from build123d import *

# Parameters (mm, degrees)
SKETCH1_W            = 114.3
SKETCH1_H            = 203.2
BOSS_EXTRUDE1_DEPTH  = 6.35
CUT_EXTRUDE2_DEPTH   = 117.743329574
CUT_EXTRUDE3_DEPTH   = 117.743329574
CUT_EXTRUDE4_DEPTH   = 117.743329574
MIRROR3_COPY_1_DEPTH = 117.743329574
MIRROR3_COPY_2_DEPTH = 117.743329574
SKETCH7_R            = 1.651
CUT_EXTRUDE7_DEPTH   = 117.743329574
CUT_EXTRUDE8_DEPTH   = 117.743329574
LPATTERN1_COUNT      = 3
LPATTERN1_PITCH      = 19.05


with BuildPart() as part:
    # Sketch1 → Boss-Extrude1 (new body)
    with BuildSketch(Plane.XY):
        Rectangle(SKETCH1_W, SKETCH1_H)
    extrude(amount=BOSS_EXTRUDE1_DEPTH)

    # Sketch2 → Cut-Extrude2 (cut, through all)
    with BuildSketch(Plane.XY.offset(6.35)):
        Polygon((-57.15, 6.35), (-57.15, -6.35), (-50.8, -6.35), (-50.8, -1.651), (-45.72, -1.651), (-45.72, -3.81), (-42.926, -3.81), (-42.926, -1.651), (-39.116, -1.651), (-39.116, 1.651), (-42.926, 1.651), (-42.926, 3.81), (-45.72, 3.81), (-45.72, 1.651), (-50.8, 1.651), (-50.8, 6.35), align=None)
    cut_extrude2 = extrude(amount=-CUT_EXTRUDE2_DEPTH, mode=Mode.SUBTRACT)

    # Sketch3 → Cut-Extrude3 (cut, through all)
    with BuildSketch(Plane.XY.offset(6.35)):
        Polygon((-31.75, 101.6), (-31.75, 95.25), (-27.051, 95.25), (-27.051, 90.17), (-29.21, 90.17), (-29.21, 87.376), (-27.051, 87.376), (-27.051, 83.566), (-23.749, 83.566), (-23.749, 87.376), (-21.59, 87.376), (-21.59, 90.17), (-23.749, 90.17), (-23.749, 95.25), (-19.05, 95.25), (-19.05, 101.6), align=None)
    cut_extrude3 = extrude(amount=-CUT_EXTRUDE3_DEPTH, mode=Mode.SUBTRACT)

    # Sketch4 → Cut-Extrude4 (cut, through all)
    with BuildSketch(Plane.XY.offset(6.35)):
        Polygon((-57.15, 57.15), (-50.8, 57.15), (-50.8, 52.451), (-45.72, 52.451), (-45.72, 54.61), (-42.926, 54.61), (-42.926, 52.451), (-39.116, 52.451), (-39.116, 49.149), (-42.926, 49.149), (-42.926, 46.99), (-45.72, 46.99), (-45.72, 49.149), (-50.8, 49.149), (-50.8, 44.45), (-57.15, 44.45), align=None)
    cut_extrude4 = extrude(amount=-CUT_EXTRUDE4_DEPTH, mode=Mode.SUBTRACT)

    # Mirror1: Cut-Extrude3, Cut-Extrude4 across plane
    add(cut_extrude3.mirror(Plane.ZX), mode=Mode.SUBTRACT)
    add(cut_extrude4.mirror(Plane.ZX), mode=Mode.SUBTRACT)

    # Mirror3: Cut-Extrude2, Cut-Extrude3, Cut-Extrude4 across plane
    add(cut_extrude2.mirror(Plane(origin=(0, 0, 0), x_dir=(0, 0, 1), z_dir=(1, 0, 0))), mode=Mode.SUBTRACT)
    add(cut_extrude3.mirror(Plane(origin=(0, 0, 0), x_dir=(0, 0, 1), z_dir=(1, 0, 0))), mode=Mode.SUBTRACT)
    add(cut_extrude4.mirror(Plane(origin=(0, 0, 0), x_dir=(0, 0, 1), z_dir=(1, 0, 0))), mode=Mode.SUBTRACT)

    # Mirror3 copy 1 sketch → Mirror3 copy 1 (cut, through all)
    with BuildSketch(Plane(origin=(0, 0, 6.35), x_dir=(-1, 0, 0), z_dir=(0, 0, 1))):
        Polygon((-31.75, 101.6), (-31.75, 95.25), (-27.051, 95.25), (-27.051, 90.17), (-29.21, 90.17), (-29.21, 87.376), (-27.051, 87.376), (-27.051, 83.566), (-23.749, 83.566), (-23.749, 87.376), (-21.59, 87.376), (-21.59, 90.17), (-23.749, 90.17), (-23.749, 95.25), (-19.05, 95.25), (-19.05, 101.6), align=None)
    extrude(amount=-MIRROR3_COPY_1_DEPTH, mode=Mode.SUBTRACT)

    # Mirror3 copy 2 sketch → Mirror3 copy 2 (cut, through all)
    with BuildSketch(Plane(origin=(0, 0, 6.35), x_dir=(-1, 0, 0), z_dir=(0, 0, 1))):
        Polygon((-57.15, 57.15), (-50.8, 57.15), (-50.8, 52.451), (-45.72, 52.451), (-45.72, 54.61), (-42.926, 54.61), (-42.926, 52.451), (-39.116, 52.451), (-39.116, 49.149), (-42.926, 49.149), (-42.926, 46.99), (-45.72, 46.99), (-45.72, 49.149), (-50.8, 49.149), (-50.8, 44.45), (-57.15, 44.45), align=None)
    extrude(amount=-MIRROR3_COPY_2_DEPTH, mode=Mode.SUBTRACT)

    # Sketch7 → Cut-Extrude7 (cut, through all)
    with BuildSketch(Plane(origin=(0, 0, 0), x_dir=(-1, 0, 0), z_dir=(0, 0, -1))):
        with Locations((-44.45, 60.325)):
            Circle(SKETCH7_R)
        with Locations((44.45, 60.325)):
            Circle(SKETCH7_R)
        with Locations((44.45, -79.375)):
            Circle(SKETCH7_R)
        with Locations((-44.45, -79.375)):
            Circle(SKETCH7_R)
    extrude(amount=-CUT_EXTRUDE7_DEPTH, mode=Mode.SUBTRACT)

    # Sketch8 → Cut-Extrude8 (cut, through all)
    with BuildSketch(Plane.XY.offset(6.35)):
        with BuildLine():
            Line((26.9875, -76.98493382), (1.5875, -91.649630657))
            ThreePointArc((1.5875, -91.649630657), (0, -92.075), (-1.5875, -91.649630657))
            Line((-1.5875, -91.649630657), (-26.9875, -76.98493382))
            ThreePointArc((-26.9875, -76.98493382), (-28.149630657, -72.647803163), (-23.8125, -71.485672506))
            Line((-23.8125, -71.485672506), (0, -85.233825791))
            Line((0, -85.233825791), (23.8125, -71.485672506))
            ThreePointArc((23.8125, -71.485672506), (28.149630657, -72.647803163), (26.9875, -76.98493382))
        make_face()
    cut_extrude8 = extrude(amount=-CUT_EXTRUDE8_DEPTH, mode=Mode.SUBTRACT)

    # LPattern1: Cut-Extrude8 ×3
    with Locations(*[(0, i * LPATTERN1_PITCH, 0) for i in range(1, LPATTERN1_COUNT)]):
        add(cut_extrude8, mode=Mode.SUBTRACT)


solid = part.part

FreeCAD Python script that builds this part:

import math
import FreeCAD as App
import Part
import Sketcher
from FreeCAD import Vector
Q = App.Units.Quantity

doc = App.newDocument("Part")
params = doc.addObject("Spreadsheet::Sheet", "Params")
for row, (alias, value) in enumerate([
    ("sketch1_height", "8 in"),
    ("sketch1_width", "4.5 in"),
    ("pad1_length", "0.25 in"),
    ("sketch2_width", "0.2 in"),
    ("sketch2_height", "0.5 in"),
    ("sketch2_width2", "0.25 in"),
    ("sketch2_width3", "0.11 in"),
    ("sketch2_width4", "0.15 in"),
    ("sketch3_width", "0.5 in"),
    ("sketch3_height", "0.2 in"),
    ("sketch3_width2", "0.13 in"),
    ("sketch3_height2", "0.25 in"),
    ("sketch3_height3", "0.11 in"),
    ("sketch4_width", "0.2 in"),
    ("sketch4_height", "0.5 in"),
    ("sketch4_width2", "0.25 in"),
    ("sketch4_width3", "0.11 in"),
    ("sketch4_width4", "0.15 in"),
    ("sketch5_width", "0.5 in"),
    ("sketch5_height", "0.2 in"),
    ("sketch5_width2", "0.13 in"),
    ("sketch5_height2", "0.25 in"),
    ("sketch5_height3", "0.11 in"),
    ("sketch6_width", "0.2 in"),
    ("sketch6_height", "0.5 in"),
    ("sketch6_width2", "0.25 in"),
    ("sketch6_width3", "0.11 in"),
    ("sketch6_width4", "0.15 in"),
    ("sketch7_diameter", "0.13 in"),
    ("sketch8_radius", "0.125 in"),
    ("linearpattern_pitch", "0.75 in"),
], start=1):
    params.set(f"A{row}", alias)
    params.set(f"B{row}", "=" + value)
    params.setAlias(f"B{row}", alias)

body = doc.addObject("PartDesign::Body", "Body")

# Sketch on XY plane
sketch1 = body.newObject("Sketcher::SketchObject", "Sketch")
sketch1.AttachmentSupport = (doc.getObject("XY_Plane"), [""])
sketch1.MapMode = "FlatFace"
sketch1.addGeometry([
    Part.LineSegment(Vector(-57, 102, 0), Vector(-57, -102, 0)),
    Part.LineSegment(Vector(-57, -102, 0), Vector(57, -102, 0)),
    Part.LineSegment(Vector(57, -102, 0), Vector(57, 102, 0)),
    Part.LineSegment(Vector(57, 102, 0), Vector(-57, 102, 0)),
], False)
sketch1.addConstraint([
    Sketcher.Constraint("Coincident", 0, 2, 1, 1),
    Sketcher.Constraint("Coincident", 1, 2, 2, 1),
    Sketcher.Constraint("Coincident", 2, 2, 3, 1),
    Sketcher.Constraint("Coincident", 3, 2, 0, 1),
    Sketcher.Constraint("Vertical", 0),
    Sketcher.Constraint("Horizontal", 1),
    Sketcher.Constraint("Vertical", 2),
    Sketcher.Constraint("Horizontal", 3),
    Sketcher.Constraint("Symmetric", 0, 2, 2, 2, -1, 1),
    Sketcher.Constraint("DistanceY", 0, 2, 0, 1, Q("8 in")),
    Sketcher.Constraint("DistanceX", 1, 1, 1, 2, Q("4.5 in")),
])
sketch1.setExpression("Constraints[9]", "Params.sketch1_height")
sketch1.setExpression("Constraints[10]", "Params.sketch1_width")
pad1 = body.newObject("PartDesign::Pad", "Pad")
pad1.Profile = sketch1
pad1.setExpression("Length", "Params.pad1_length")

# Sketch on XY plane
sketch2 = body.newObject("Sketcher::SketchObject", "Sketch001")
sketch2.AttachmentSupport = (doc.getObject("XY_Plane"), [""])
sketch2.MapMode = "FlatFace"
sketch2.AttachmentOffset = App.Placement(Vector(0, 0, 0.25 * 25.4), App.Rotation())
sketch2.addGeometry([
    Part.LineSegment(Vector(-57.1, 6.3, 0), Vector(-57.1, -6.3, 0)),  # 0
    Part.LineSegment(Vector(-57.1, -6.3, 0), Vector(-50.8, -6.3, 0)),  # 1
    Part.LineSegment(Vector(-50.8, -6.3, 0), Vector(-50.8, -1.7, 0)),  # 2
    Part.LineSegment(Vector(-50.8, -1.7, 0), Vector(-45.7, -1.7, 0)),  # 3
    Part.LineSegment(Vector(-45.7, -1.7, 0), Vector(-45.7, -3.8, 0)),  # 4
    Part.LineSegment(Vector(-45.7, -3.8, 0), Vector(-42.9, -3.8, 0)),  # 5
    Part.LineSegment(Vector(-42.9, -3.8, 0), Vector(-42.9, -1.7, 0)),  # 6
    Part.LineSegment(Vector(-42.9, -1.7, 0), Vector(-39.1, -1.7, 0)),  # 7
    Part.LineSegment(Vector(-39.1, -1.7, 0), Vector(-39.1, 1.7, 0)),  # 8
    Part.LineSegment(Vector(-39.1, 1.7, 0), Vector(-42.9, 1.7, 0)),  # 9
    Part.LineSegment(Vector(-42.9, 1.7, 0), Vector(-42.9, 3.8, 0)),  # 10
    Part.LineSegment(Vector(-42.9, 3.8, 0), Vector(-45.7, 3.8, 0)),  # 11
    Part.LineSegment(Vector(-45.7, 3.8, 0), Vector(-45.7, 1.7, 0)),  # 12
    Part.LineSegment(Vector(-45.7, 1.7, 0), Vector(-50.8, 1.7, 0)),  # 13
    Part.LineSegment(Vector(-50.8, 1.7, 0), Vector(-50.8, 6.3, 0)),  # 14
    Part.LineSegment(Vector(-50.8, 6.3, 0), Vector(-57.1, 6.3, 0)),  # 15
], False)
sketch2.addConstraint([
    Sketcher.Constraint("Coincident", 0, 2, 1, 1),
    Sketcher.Constraint("Coincident", 1, 2, 2, 1),
    Sketcher.Constraint("Coincident", 2, 2, 3, 1),
    Sketcher.Constraint("Coincident", 3, 2, 4, 1),
    Sketcher.Constraint("Coincident", 4, 2, 5, 1),
    Sketcher.Constraint("Coincident", 5, 2, 6, 1),
    Sketcher.Constraint("Coincident", 6, 2, 7, 1),
    Sketcher.Constraint("Coincident", 7, 2, 8, 1),
    Sketcher.Constraint("Coincident", 8, 2, 9, 1),
    Sketcher.Constraint("Coincident", 9, 2, 10, 1),
    Sketcher.Constraint("Coincident", 10, 2, 11, 1),
    Sketcher.Constraint("Coincident", 11, 2, 12, 1),
    Sketcher.Constraint("Coincident", 12, 2, 13, 1),
    Sketcher.Constraint("Coincident", 13, 2, 14, 1),
    Sketcher.Constraint("Coincident", 14, 2, 15, 1),
    Sketcher.Constraint("Coincident", 15, 2, 0, 1),
    Sketcher.Constraint("Vertical", 0),
    Sketcher.Constraint("Horizontal", 1),
    Sketcher.Constraint("Vertical", 2),
    Sketcher.Constraint("Horizontal", 3),
    Sketcher.Constraint("Vertical", 4),
    Sketcher.Constraint("Horizontal", 5),
    Sketcher.Constraint("Vertical", 6),
    Sketcher.Constraint("Horizontal", 7),
    Sketcher.Constraint("Vertical", 8),
    Sketcher.Constraint("Horizontal", 9),
    Sketcher.Constraint("Vertical", 10),
    Sketcher.Constraint("Horizontal", 11),
    Sketcher.Constraint("Vertical", 12),
    Sketcher.Constraint("Horizontal", 13),
    Sketcher.Constraint("Vertical", 14),
    Sketcher.Constraint("Horizontal", 15),
    Sketcher.Constraint("Symmetric", 6, 2, 9, 2, -1),
    Sketcher.Constraint("Symmetric", 4, 2, 11, 2, -1),
    Sketcher.Constraint("Symmetric", 2, 2, 13, 2, -1),
    Sketcher.Constraint("Horizontal", 3, 2, 6, 2),
    Sketcher.Constraint("Equal", 2, 14),
    Sketcher.Constraint("DistanceX", 3, 1, 3, 2, Q("0.2 in")),
    Sketcher.Constraint("DistanceY", 0, 2, 0, 1, Q("0.5 in")),
    Sketcher.Constraint("DistanceX", 1, 2, -1, 1, Q("2 in")),
    Sketcher.Constraint("DistanceX", 1, 1, 1, 2, Q("0.25 in")),
    Sketcher.Constraint("DistanceX", 5, 1, 5, 2, Q("0.11 in")),
    Sketcher.Constraint("DistanceX", 7, 1, 7, 2, Q("0.15 in")),
    Sketcher.Constraint("DistanceY", 8, 1, 8, 2, Q("0.13 in")),
    Sketcher.Constraint("DistanceY", 1, 2, 4, 2, Q("0.1 in")),
])
sketch2.setExpression("Constraints[37]", "Params.sketch2_width")
sketch2.setExpression("Constraints[38]", "Params.sketch2_height")
sketch2.setExpression("Constraints[40]", "Params.sketch2_width2")
sketch2.setExpression("Constraints[41]", "Params.sketch2_width3")
sketch2.setExpression("Constraints[42]", "Params.sketch2_width4")
pocket1 = body.newObject("PartDesign::Pocket", "Pocket")
pocket1.Profile = sketch2
pocket1.Type = "ThroughAll"

# Sketch on XY plane
sketch3 = body.newObject("Sketcher::SketchObject", "Sketch002")
sketch3.AttachmentSupport = (doc.getObject("XY_Plane"), [""])
sketch3.MapMode = "FlatFace"
sketch3.AttachmentOffset = App.Placement(Vector(0, 0, 0.25 * 25.4), App.Rotation())
sketch3.addGeometry([
    Part.LineSegment(Vector(-31.8, 101.6, 0), Vector(-31.8, 95.2, 0)),  # 0
    Part.LineSegment(Vector(-31.8, 95.2, 0), Vector(-27.1, 95.2, 0)),  # 1
    Part.LineSegment(Vector(-27.1, 95.2, 0), Vector(-27.1, 90.2, 0)),  # 2
    Part.LineSegment(Vector(-27.1, 90.2, 0), Vector(-29.2, 90.2, 0)),  # 3
    Part.LineSegment(Vector(-29.2, 90.2, 0), Vector(-29.2, 87.4, 0)),  # 4
    Part.LineSegment(Vector(-29.2, 87.4, 0), Vector(-27.1, 87.4, 0)),  # 5
    Part.LineSegment(Vector(-27.1, 87.4, 0), Vector(-27.1, 83.6, 0)),  # 6
    Part.LineSegment(Vector(-27.1, 83.6, 0), Vector(-23.7, 83.6, 0)),  # 7
    Part.LineSegment(Vector(-23.7, 83.6, 0), Vector(-23.7, 87.4, 0)),  # 8
    Part.LineSegment(Vector(-23.7, 87.4, 0), Vector(-21.6, 87.4, 0)),  # 9
    Part.LineSegment(Vector(-21.6, 87.4, 0), Vector(-21.6, 90.2, 0)),  # 10
    Part.LineSegment(Vector(-21.6, 90.2, 0), Vector(-23.7, 90.2, 0)),  # 11
    Part.LineSegment(Vector(-23.7, 90.2, 0), Vector(-23.7, 95.2, 0)),  # 12
    Part.LineSegment(Vector(-23.7, 95.2, 0), Vector(-19.1, 95.2, 0)),  # 13
    Part.LineSegment(Vector(-19.1, 95.2, 0), Vector(-19.1, 101.6, 0)),  # 14
    Part.LineSegment(Vector(-19.1, 101.6, 0), Vector(-31.8, 101.6, 0)),  # 15
], False)
sketch3.addConstraint([
    Sketcher.Constraint("Coincident", 0, 2, 1, 1),
    Sketcher.Constraint("Coincident", 1, 2, 2, 1),
    Sketcher.Constraint("Coincident", 2, 2, 3, 1),
    Sketcher.Constraint("Coincident", 3, 2, 4, 1),
    Sketcher.Constraint("Coincident", 4, 2, 5, 1),
    Sketcher.Constraint("Coincident", 5, 2, 6, 1),
    Sketcher.Constraint("Coincident", 6, 2, 7, 1),
    Sketcher.Constraint("Coincident", 7, 2, 8, 1),
    Sketcher.Constraint("Coincident", 8, 2, 9, 1),
    Sketcher.Constraint("Coincident", 9, 2, 10, 1),
    Sketcher.Constraint("Coincident", 10, 2, 11, 1),
    Sketcher.Constraint("Coincident", 11, 2, 12, 1),
    Sketcher.Constraint("Coincident", 12, 2, 13, 1),
    Sketcher.Constraint("Coincident", 13, 2, 14, 1),
    Sketcher.Constraint("Coincident", 14, 2, 15, 1),
    Sketcher.Constraint("Coincident", 15, 2, 0, 1),
    Sketcher.Constraint("Vertical", 0),
    Sketcher.Constraint("Horizontal", 1),
    Sketcher.Constraint("Vertical", 2),
    Sketcher.Constraint("Horizontal", 3),
    Sketcher.Constraint("Vertical", 4),
    Sketcher.Constraint("Horizontal", 5),
    Sketcher.Constraint("Vertical", 6),
    Sketcher.Constraint("Horizontal", 7),
    Sketcher.Constraint("Vertical", 8),
    Sketcher.Constraint("Horizontal", 9),
    Sketcher.Constraint("Vertical", 10),
    Sketcher.Constraint("Horizontal", 11),
    Sketcher.Constraint("Vertical", 12),
    Sketcher.Constraint("Horizontal", 13),
    Sketcher.Constraint("Vertical", 14),
    Sketcher.Constraint("Horizontal", 15),
    Sketcher.Constraint("Horizontal", 5, 2, 8, 2),
    Sketcher.Constraint("Horizontal", 3, 2, 10, 2),
    Sketcher.Constraint("Horizontal", 1, 2, 12, 2),
    Sketcher.Constraint("Vertical", 2, 2, 5, 2),
    Sketcher.Constraint("Vertical", 8, 2, 11, 2),
    Sketcher.Constraint("Equal", 5, 9),
    Sketcher.Constraint("Equal", 1, 13),
    Sketcher.Constraint("DistanceX", 15, 2, 15, 1, Q("0.5 in")),
    Sketcher.Constraint("DistanceY", 2, 2, 2, 1, Q("0.2 in")),
    Sketcher.Constraint("DistanceY", -1, 1, 14, 2, Q("4 in")),
    Sketcher.Constraint("DistanceX", 7, 1, 7, 2, Q("0.13 in")),
    Sketcher.Constraint("DistanceY", 0, 2, 0, 1, Q("0.25 in")),
    Sketcher.Constraint("DistanceY", 4, 2, 4, 1, Q("0.11 in")),
    Sketcher.Constraint("DistanceY", 6, 2, 6, 1, Q("0.15 in")),
    Sketcher.Constraint("DistanceX", 0, 2, 3, 2, Q("0.1 in")),
    Sketcher.Constraint("DistanceX", 0, 2, -1, 1, Q("1.25 in")),
])
sketch3.setExpression("Constraints[39]", "Params.sketch3_width")
sketch3.setExpression("Constraints[40]", "Params.sketch3_height")
sketch3.setExpression("Constraints[42]", "Params.sketch3_width2")
sketch3.setExpression("Constraints[43]", "Params.sketch3_height2")
sketch3.setExpression("Constraints[44]", "Params.sketch3_height3")
pocket2 = body.newObject("PartDesign::Pocket", "Pocket001")
pocket2.Profile = sketch3
pocket2.Type = "ThroughAll"

# Sketch on XY plane
sketch4 = body.newObject("Sketcher::SketchObject", "Sketch003")
sketch4.AttachmentSupport = (doc.getObject("XY_Plane"), [""])
sketch4.MapMode = "FlatFace"
sketch4.AttachmentOffset = App.Placement(Vector(0, 0, 0.25 * 25.4), App.Rotation())
sketch4.addGeometry([
    Part.LineSegment(Vector(-50.8, 57.1, 0), Vector(-57.1, 57.1, 0)),  # 0
    Part.LineSegment(Vector(-57.1, 57.1, 0), Vector(-57.1, 44.5, 0)),  # 1
    Part.LineSegment(Vector(-57.1, 44.5, 0), Vector(-50.8, 44.5, 0)),  # 2
    Part.LineSegment(Vector(-50.8, 44.5, 0), Vector(-50.8, 49.1, 0)),  # 3
    Part.LineSegment(Vector(-50.8, 49.1, 0), Vector(-45.7, 49.1, 0)),  # 4
    Part.LineSegment(Vector(-45.7, 49.1, 0), Vector(-45.7, 47, 0)),  # 5
    Part.LineSegment(Vector(-45.7, 47, 0), Vector(-42.9, 47, 0)),  # 6
    Part.LineSegment(Vector(-42.9, 47, 0), Vector(-42.9, 49.1, 0)),  # 7
    Part.LineSegment(Vector(-42.9, 49.1, 0), Vector(-39.1, 49.1, 0)),  # 8
    Part.LineSegment(Vector(-39.1, 49.1, 0), Vector(-39.1, 52.5, 0)),  # 9
    Part.LineSegment(Vector(-39.1, 52.5, 0), Vector(-42.9, 52.5, 0)),  # 10
    Part.LineSegment(Vector(-42.9, 52.5, 0), Vector(-42.9, 54.6, 0)),  # 11
    Part.LineSegment(Vector(-42.9, 54.6, 0), Vector(-45.7, 54.6, 0)),  # 12
    Part.LineSegment(Vector(-45.7, 54.6, 0), Vector(-45.7, 52.5, 0)),  # 13
    Part.LineSegment(Vector(-45.7, 52.5, 0), Vector(-50.8, 52.5, 0)),  # 14
    Part.LineSegment(Vector(-50.8, 52.5, 0), Vector(-50.8, 57.1, 0)),  # 15
], False)
sketch4.addConstraint([
    Sketcher.Constraint("Coincident", 0, 2, 1, 1),
    Sketcher.Constraint("Coincident", 1, 2, 2, 1),
    Sketcher.Constraint("Coincident", 2, 2, 3, 1),
    Sketcher.Constraint("Coincident", 3, 2, 4, 1),
    Sketcher.Constraint("Coincident", 4, 2, 5, 1),
    Sketcher.Constraint("Coincident", 5, 2, 6, 1),
    Sketcher.Constraint("Coincident", 6, 2, 7, 1),
    Sketcher.Constraint("Coincident", 7, 2, 8, 1),
    Sketcher.Constraint("Coincident", 8, 2, 9, 1),
    Sketcher.Constraint("Coincident", 9, 2, 10, 1),
    Sketcher.Constraint("Coincident", 10, 2, 11, 1),
    Sketcher.Constraint("Coincident", 11, 2, 12, 1),
    Sketcher.Constraint("Coincident", 12, 2, 13, 1),
    Sketcher.Constraint("Coincident", 13, 2, 14, 1),
    Sketcher.Constraint("Coincident", 14, 2, 15, 1),
    Sketcher.Constraint("Coincident", 15, 2, 0, 1),
    Sketcher.Constraint("Horizontal", 0),
    Sketcher.Constraint("Vertical", 1),
    Sketcher.Constraint("Horizontal", 2),
    Sketcher.Constraint("Vertical", 3),
    Sketcher.Constraint("Horizontal", 4),
    Sketcher.Constraint("Vertical", 5),
    Sketcher.Constraint("Horizontal", 6),
    Sketcher.Constraint("Vertical", 7),
    Sketcher.Constraint("Horizontal", 8),
    Sketcher.Constraint("Vertical", 9),
    Sketcher.Constraint("Horizontal", 10),
    Sketcher.Constraint("Vertical", 11),
    Sketcher.Constraint("Horizontal", 12),
    Sketcher.Constraint("Vertical", 13),
    Sketcher.Constraint("Horizontal", 14),
    Sketcher.Constraint("Vertical", 15),
    Sketcher.Constraint("Horizontal", 4, 2, 7, 2),
    Sketcher.Constraint("Horizontal", 10, 2, 13, 2),
    Sketcher.Constraint("Vertical", 7, 2, 10, 2),
    Sketcher.Constraint("Vertical", 5, 2, 12, 2),
    Sketcher.Constraint("Vertical", 3, 2, 14, 2),
    Sketcher.Constraint("Equal", 7, 11),
    Sketcher.Constraint("Equal", 3, 15),
    Sketcher.Constraint("DistanceX", 4, 1, 4, 2, Q("0.2 in")),
    Sketcher.Constraint("DistanceY", 1, 2, 1, 1, Q("0.5 in")),
    Sketcher.Constraint("DistanceX", 2, 2, -1, 1, Q("2 in")),
    Sketcher.Constraint("DistanceX", 0, 2, 0, 1, Q("0.25 in")),
    Sketcher.Constraint("DistanceX", 6, 1, 6, 2, Q("0.11 in")),
    Sketcher.Constraint("DistanceX", 8, 1, 8, 2, Q("0.15 in")),
    Sketcher.Constraint("DistanceY", 9, 1, 9, 2, Q("0.13 in")),
    Sketcher.Constraint("DistanceY", 2, 2, 5, 2, Q("0.1 in")),
    Sketcher.Constraint("DistanceY", -1, 1, 0, 2, Q("2.25 in")),
])
sketch4.setExpression("Constraints[39]", "Params.sketch4_width")
sketch4.setExpression("Constraints[40]", "Params.sketch4_height")
sketch4.setExpression("Constraints[42]", "Params.sketch4_width2")
sketch4.setExpression("Constraints[43]", "Params.sketch4_width3")
sketch4.setExpression("Constraints[44]", "Params.sketch4_width4")
pocket3 = body.newObject("PartDesign::Pocket", "Pocket002")
pocket3.Profile = sketch4
pocket3.Type = "ThroughAll"
doc.recompute()

mirrored = body.newObject("PartDesign::Mirrored", "Mirrored")
mirrored.Originals = [pocket2, pocket3]
mirrored.MirrorPlane = (doc.getObject("XZ_Plane"), [""])
body.Tip = mirrored
doc.recompute()

mirrored2 = body.newObject("PartDesign::Mirrored", "Mirrored001")
mirrored2.Originals = [pocket1, pocket2, pocket3]
mirrored2.MirrorPlane = (doc.getObject("YZ_Plane"), [""])
body.Tip = mirrored2

# Sketch on XY plane
sketch5 = body.newObject("Sketcher::SketchObject", "Sketch004")
sketch5.AttachmentSupport = (doc.getObject("XY_Plane"), [""])
sketch5.MapMode = "FlatFace"
sketch5.AttachmentOffset = App.Placement(Vector(0, 0, 0.25 * 25.4), App.Rotation())
sketch5.addGeometry([
    Part.LineSegment(Vector(31.8, -101.6, 0), Vector(31.8, -95.2, 0)),  # 0
    Part.LineSegment(Vector(31.8, -95.2, 0), Vector(27.1, -95.2, 0)),  # 1
    Part.LineSegment(Vector(27.1, -95.2, 0), Vector(27.1, -90.2, 0)),  # 2
    Part.LineSegment(Vector(27.1, -90.2, 0), Vector(29.2, -90.2, 0)),  # 3
    Part.LineSegment(Vector(29.2, -90.2, 0), Vector(29.2, -87.4, 0)),  # 4
    Part.LineSegment(Vector(29.2, -87.4, 0), Vector(27.1, -87.4, 0)),  # 5
    Part.LineSegment(Vector(27.1, -87.4, 0), Vector(27.1, -83.6, 0)),  # 6
    Part.LineSegment(Vector(27.1, -83.6, 0), Vector(23.7, -83.6, 0)),  # 7
    Part.LineSegment(Vector(23.7, -83.6, 0), Vector(23.7, -87.4, 0)),  # 8
    Part.LineSegment(Vector(23.7, -87.4, 0), Vector(21.6, -87.4, 0)),  # 9
    Part.LineSegment(Vector(21.6, -87.4, 0), Vector(21.6, -90.2, 0)),  # 10
    Part.LineSegment(Vector(21.6, -90.2, 0), Vector(23.7, -90.2, 0)),  # 11
    Part.LineSegment(Vector(23.7, -90.2, 0), Vector(23.7, -95.2, 0)),  # 12
    Part.LineSegment(Vector(23.7, -95.2, 0), Vector(19.1, -95.2, 0)),  # 13
    Part.LineSegment(Vector(19.1, -95.2, 0), Vector(19.1, -101.6, 0)),  # 14
    Part.LineSegment(Vector(19.1, -101.6, 0), Vector(31.8, -101.6, 0)),  # 15
], False)
sketch5.addConstraint([
    Sketcher.Constraint("Coincident", 0, 2, 1, 1),
    Sketcher.Constraint("Coincident", 1, 2, 2, 1),
    Sketcher.Constraint("Coincident", 2, 2, 3, 1),
    Sketcher.Constraint("Coincident", 3, 2, 4, 1),
    Sketcher.Constraint("Coincident", 4, 2, 5, 1),
    Sketcher.Constraint("Coincident", 5, 2, 6, 1),
    Sketcher.Constraint("Coincident", 6, 2, 7, 1),
    Sketcher.Constraint("Coincident", 7, 2, 8, 1),
    Sketcher.Constraint("Coincident", 8, 2, 9, 1),
    Sketcher.Constraint("Coincident", 9, 2, 10, 1),
    Sketcher.Constraint("Coincident", 10, 2, 11, 1),
    Sketcher.Constraint("Coincident", 11, 2, 12, 1),
    Sketcher.Constraint("Coincident", 12, 2, 13, 1),
    Sketcher.Constraint("Coincident", 13, 2, 14, 1),
    Sketcher.Constraint("Coincident", 14, 2, 15, 1),
    Sketcher.Constraint("Coincident", 15, 2, 0, 1),
    Sketcher.Constraint("Vertical", 0),
    Sketcher.Constraint("Horizontal", 1),
    Sketcher.Constraint("Vertical", 2),
    Sketcher.Constraint("Horizontal", 3),
    Sketcher.Constraint("Vertical", 4),
    Sketcher.Constraint("Horizontal", 5),
    Sketcher.Constraint("Vertical", 6),
    Sketcher.Constraint("Horizontal", 7),
    Sketcher.Constraint("Vertical", 8),
    Sketcher.Constraint("Horizontal", 9),
    Sketcher.Constraint("Vertical", 10),
    Sketcher.Constraint("Horizontal", 11),
    Sketcher.Constraint("Vertical", 12),
    Sketcher.Constraint("Horizontal", 13),
    Sketcher.Constraint("Vertical", 14),
    Sketcher.Constraint("Horizontal", 15),
    Sketcher.Constraint("Horizontal", 5, 2, 8, 2),
    Sketcher.Constraint("Horizontal", 3, 2, 10, 2),
    Sketcher.Constraint("Horizontal", 1, 2, 12, 2),
    Sketcher.Constraint("Vertical", 2, 2, 5, 2),
    Sketcher.Constraint("Vertical", 8, 2, 11, 2),
    Sketcher.Constraint("Equal", 5, 9),
    Sketcher.Constraint("Equal", 1, 13),
    Sketcher.Constraint("DistanceX", 15, 1, 15, 2, Q("0.5 in")),
    Sketcher.Constraint("DistanceY", 2, 1, 2, 2, Q("0.2 in")),
    Sketcher.Constraint("DistanceY", 14, 2, -1, 1, Q("4 in")),
    Sketcher.Constraint("DistanceX", 7, 2, 7, 1, Q("0.13 in")),
    Sketcher.Constraint("DistanceY", 0, 1, 0, 2, Q("0.25 in")),
    Sketcher.Constraint("DistanceY", 4, 1, 4, 2, Q("0.11 in")),
    Sketcher.Constraint("DistanceY", 6, 1, 6, 2, Q("0.15 in")),
    Sketcher.Constraint("DistanceX", 3, 2, 0, 2, Q("0.1 in")),
    Sketcher.Constraint("DistanceX", -1, 1, 0, 2, Q("1.25 in")),
])
sketch5.setExpression("Constraints[39]", "Params.sketch5_width")
sketch5.setExpression("Constraints[40]", "Params.sketch5_height")
sketch5.setExpression("Constraints[42]", "Params.sketch5_width2")
sketch5.setExpression("Constraints[43]", "Params.sketch5_height2")
sketch5.setExpression("Constraints[44]", "Params.sketch5_height3")
pocket4 = body.newObject("PartDesign::Pocket", "Pocket003")
pocket4.Profile = sketch5
pocket4.Type = "ThroughAll"

# Sketch on XY plane
sketch6 = body.newObject("Sketcher::SketchObject", "Sketch005")
sketch6.AttachmentSupport = (doc.getObject("XY_Plane"), [""])
sketch6.MapMode = "FlatFace"
sketch6.AttachmentOffset = App.Placement(Vector(0, 0, 0.25 * 25.4), App.Rotation())
sketch6.addGeometry([
    Part.LineSegment(Vector(50.8, -57.1, 0), Vector(57.1, -57.1, 0)),  # 0
    Part.LineSegment(Vector(57.1, -57.1, 0), Vector(57.1, -44.5, 0)),  # 1
    Part.LineSegment(Vector(57.1, -44.5, 0), Vector(50.8, -44.5, 0)),  # 2
    Part.LineSegment(Vector(50.8, -44.5, 0), Vector(50.8, -49.1, 0)),  # 3
    Part.LineSegment(Vector(50.8, -49.1, 0), Vector(45.7, -49.1, 0)),  # 4
    Part.LineSegment(Vector(45.7, -49.1, 0), Vector(45.7, -47, 0)),  # 5
    Part.LineSegment(Vector(45.7, -47, 0), Vector(42.9, -47, 0)),  # 6
    Part.LineSegment(Vector(42.9, -47, 0), Vector(42.9, -49.1, 0)),  # 7
    Part.LineSegment(Vector(42.9, -49.1, 0), Vector(39.1, -49.1, 0)),  # 8
    Part.LineSegment(Vector(39.1, -49.1, 0), Vector(39.1, -52.5, 0)),  # 9
    Part.LineSegment(Vector(39.1, -52.5, 0), Vector(42.9, -52.5, 0)),  # 10
    Part.LineSegment(Vector(42.9, -52.5, 0), Vector(42.9, -54.6, 0)),  # 11
    Part.LineSegment(Vector(42.9, -54.6, 0), Vector(45.7, -54.6, 0)),  # 12
    Part.LineSegment(Vector(45.7, -54.6, 0), Vector(45.7, -52.5, 0)),  # 13
    Part.LineSegment(Vector(45.7, -52.5, 0), Vector(50.8, -52.5, 0)),  # 14
    Part.LineSegment(Vector(50.8, -52.5, 0), Vector(50.8, -57.1, 0)),  # 15
], False)
sketch6.addConstraint([
    Sketcher.Constraint("Coincident", 0, 2, 1, 1),
    Sketcher.Constraint("Coincident", 1, 2, 2, 1),
    Sketcher.Constraint("Coincident", 2, 2, 3, 1),
    Sketcher.Constraint("Coincident", 3, 2, 4, 1),
    Sketcher.Constraint("Coincident", 4, 2, 5, 1),
    Sketcher.Constraint("Coincident", 5, 2, 6, 1),
    Sketcher.Constraint("Coincident", 6, 2, 7, 1),
    Sketcher.Constraint("Coincident", 7, 2, 8, 1),
    Sketcher.Constraint("Coincident", 8, 2, 9, 1),
    Sketcher.Constraint("Coincident", 9, 2, 10, 1),
    Sketcher.Constraint("Coincident", 10, 2, 11, 1),
    Sketcher.Constraint("Coincident", 11, 2, 12, 1),
    Sketcher.Constraint("Coincident", 12, 2, 13, 1),
    Sketcher.Constraint("Coincident", 13, 2, 14, 1),
    Sketcher.Constraint("Coincident", 14, 2, 15, 1),
    Sketcher.Constraint("Coincident", 15, 2, 0, 1),
    Sketcher.Constraint("Horizontal", 0),
    Sketcher.Constraint("Vertical", 1),
    Sketcher.Constraint("Horizontal", 2),
    Sketcher.Constraint("Vertical", 3),
    Sketcher.Constraint("Horizontal", 4),
    Sketcher.Constraint("Vertical", 5),
    Sketcher.Constraint("Horizontal", 6),
    Sketcher.Constraint("Vertical", 7),
    Sketcher.Constraint("Horizontal", 8),
    Sketcher.Constraint("Vertical", 9),
    Sketcher.Constraint("Horizontal", 10),
    Sketcher.Constraint("Vertical", 11),
    Sketcher.Constraint("Horizontal", 12),
    Sketcher.Constraint("Vertical", 13),
    Sketcher.Constraint("Horizontal", 14),
    Sketcher.Constraint("Vertical", 15),
    Sketcher.Constraint("Horizontal", 4, 2, 7, 2),
    Sketcher.Constraint("Horizontal", 10, 2, 13, 2),
    Sketcher.Constraint("Vertical", 7, 2, 10, 2),
    Sketcher.Constraint("Vertical", 5, 2, 12, 2),
    Sketcher.Constraint("Vertical", 3, 2, 14, 2),
    Sketcher.Constraint("Equal", 7, 11),
    Sketcher.Constraint("Equal", 3, 15),
    Sketcher.Constraint("DistanceX", 4, 2, 4, 1, Q("0.2 in")),
    Sketcher.Constraint("DistanceY", 1, 1, 1, 2, Q("0.5 in")),
    Sketcher.Constraint("DistanceX", -1, 1, 2, 2, Q("2 in")),
    Sketcher.Constraint("DistanceX", 0, 1, 0, 2, Q("0.25 in")),
    Sketcher.Constraint("DistanceX", 6, 2, 6, 1, Q("0.11 in")),
    Sketcher.Constraint("DistanceX", 8, 2, 8, 1, Q("0.15 in")),
    Sketcher.Constraint("DistanceY", 9, 2, 9, 1, Q("0.13 in")),
    Sketcher.Constraint("DistanceY", 5, 2, 2, 2, Q("0.1 in")),
    Sketcher.Constraint("DistanceY", 0, 2, -1, 1, Q("2.25 in")),
])
sketch6.setExpression("Constraints[39]", "Params.sketch6_width")
sketch6.setExpression("Constraints[40]", "Params.sketch6_height")
sketch6.setExpression("Constraints[42]", "Params.sketch6_width2")
sketch6.setExpression("Constraints[43]", "Params.sketch6_width3")
sketch6.setExpression("Constraints[44]", "Params.sketch6_width4")
pocket5 = body.newObject("PartDesign::Pocket", "Pocket004")
pocket5.Profile = sketch6
pocket5.Type = "ThroughAll"

# Sketch on XY plane
sketch7 = body.newObject("Sketcher::SketchObject", "Sketch006")
sketch7.AttachmentSupport = (doc.getObject("XY_Plane"), [""])
sketch7.MapMode = "FlatFace"
sketch7.addGeometry([
    Part.Circle(Vector(44.5, 60.3, 0), Vector(0, 0, 1), 1.7),
    Part.Circle(Vector(-44.5, 60.3, 0), Vector(0, 0, 1), 1.7),
    Part.Circle(Vector(-44.5, -79.4, 0), Vector(0, 0, 1), 1.7),
    Part.Circle(Vector(44.5, -79.4, 0), Vector(0, 0, 1), 1.7),
], False)
sketch7.addConstraint([
    Sketcher.Constraint("Equal", 0, 1),
    Sketcher.Constraint("Equal", 1, 2),
    Sketcher.Constraint("Equal", 2, 3),
    Sketcher.Constraint("Symmetric", 0, 3, 1, 3, -2),
    Sketcher.Constraint("Symmetric", 2, 3, 3, 3, -2),
    Sketcher.Constraint("Vertical", 1, 3, 2, 3),
    Sketcher.Constraint("Diameter", 0, Q("0.13 in")),
    Sketcher.Constraint("DistanceX", 1, 3, 0, 3, Q("3.5 in")),
    Sketcher.Constraint("DistanceY", 2, 3, 1, 3, Q("5.5 in")),
    Sketcher.Constraint("DistanceY", -1, 1, 0, 3, Q("2.375 in")),
])
sketch7.setExpression("Constraints[6]", "Params.sketch7_diameter")
pocket6 = body.newObject("PartDesign::Pocket", "Pocket005")
pocket6.Profile = sketch7
pocket6.Type = "ThroughAll"
pocket6.Reversed = True

# Sketch on XY plane
sketch8 = body.newObject("Sketcher::SketchObject", "Sketch007")
sketch8.AttachmentSupport = (doc.getObject("XY_Plane"), [""])
sketch8.MapMode = "FlatFace"
sketch8.AttachmentOffset = App.Placement(Vector(0, 0, 0.25 * 25.4), App.Rotation())
sketch8.addGeometry([
    Part.LineSegment(Vector(1.6, -91.6, 0), Vector(27, -77, 0)),  # 0
    Part.ArcOfCircle(Part.Circle(Vector(25.4, -74.2, 0), Vector(0, 0, 1), 3.2), math.radians(-60), math.radians(120)),  # 1
    Part.LineSegment(Vector(23.8, -71.5, 0), Vector(0, -85.2, 0)),  # 2
    Part.LineSegment(Vector(0, -85.2, 0), Vector(-23.8, -71.5, 0)),  # 3
    Part.ArcOfCircle(Part.Circle(Vector(-25.4, -74.2, 0), Vector(0, 0, 1), 3.2), math.radians(60), math.radians(240)),  # 4
    Part.LineSegment(Vector(-27, -77, 0), Vector(-1.6, -91.6, 0)),  # 5
    Part.ArcOfCircle(Part.Circle(Vector(0, -88.9, 0), Vector(0, 0, 1), 3.2), math.radians(-120), math.radians(-60)),  # 6
], False)
sketch8.addConstraint([
    Sketcher.Constraint("Tangent", 0, 2, 1, 1),
    Sketcher.Constraint("Tangent", 1, 2, 2, 1),
    Sketcher.Constraint("Coincident", 2, 2, 3, 1),
    Sketcher.Constraint("Tangent", 3, 2, 4, 1),
    Sketcher.Constraint("Tangent", 4, 2, 5, 1),
    Sketcher.Constraint("Tangent", 5, 2, 6, 1),
    Sketcher.Constraint("Tangent", 6, 2, 0, 1),
    Sketcher.Constraint("Equal", 1, 4),
    Sketcher.Constraint("Equal", 4, 6),
    Sketcher.Constraint("Symmetric", 1, 3, 4, 3, -2),
    Sketcher.Constraint("PointOnObject", 6, 3, -2),
    Sketcher.Constraint("PointOnObject", 2, 2, -2),
    Sketcher.Constraint("Parallel", 0, 2),
    Sketcher.Constraint("DistanceX", -1, 1, 1, 3, Q("1 in")),
    Sketcher.Constraint("Angle", 0, Q("30 deg")),
    Sketcher.Constraint("Radius", 1, Q("0.125 in")),
    Sketcher.Constraint("DistanceY", 6, 3, -1, 1, Q("3.5 in")),
])
sketch8.setExpression("Constraints[15]", "Params.sketch8_radius")
pocket7 = body.newObject("PartDesign::Pocket", "Pocket006")
pocket7.Profile = sketch8
pocket7.Type = "ThroughAll"
doc.recompute()

linearpattern = body.newObject("PartDesign::LinearPattern", "LinearPattern")
linearpattern.Originals = [pocket7]
linearpattern.Direction = (doc.getObject("Y_Axis"), [""])
linearpattern.Mode = "offset"
linearpattern.setExpression("Offset", "Params.linearpattern_pitch")
linearpattern.Occurrences = 3
body.Tip = linearpattern

doc.recompute()
